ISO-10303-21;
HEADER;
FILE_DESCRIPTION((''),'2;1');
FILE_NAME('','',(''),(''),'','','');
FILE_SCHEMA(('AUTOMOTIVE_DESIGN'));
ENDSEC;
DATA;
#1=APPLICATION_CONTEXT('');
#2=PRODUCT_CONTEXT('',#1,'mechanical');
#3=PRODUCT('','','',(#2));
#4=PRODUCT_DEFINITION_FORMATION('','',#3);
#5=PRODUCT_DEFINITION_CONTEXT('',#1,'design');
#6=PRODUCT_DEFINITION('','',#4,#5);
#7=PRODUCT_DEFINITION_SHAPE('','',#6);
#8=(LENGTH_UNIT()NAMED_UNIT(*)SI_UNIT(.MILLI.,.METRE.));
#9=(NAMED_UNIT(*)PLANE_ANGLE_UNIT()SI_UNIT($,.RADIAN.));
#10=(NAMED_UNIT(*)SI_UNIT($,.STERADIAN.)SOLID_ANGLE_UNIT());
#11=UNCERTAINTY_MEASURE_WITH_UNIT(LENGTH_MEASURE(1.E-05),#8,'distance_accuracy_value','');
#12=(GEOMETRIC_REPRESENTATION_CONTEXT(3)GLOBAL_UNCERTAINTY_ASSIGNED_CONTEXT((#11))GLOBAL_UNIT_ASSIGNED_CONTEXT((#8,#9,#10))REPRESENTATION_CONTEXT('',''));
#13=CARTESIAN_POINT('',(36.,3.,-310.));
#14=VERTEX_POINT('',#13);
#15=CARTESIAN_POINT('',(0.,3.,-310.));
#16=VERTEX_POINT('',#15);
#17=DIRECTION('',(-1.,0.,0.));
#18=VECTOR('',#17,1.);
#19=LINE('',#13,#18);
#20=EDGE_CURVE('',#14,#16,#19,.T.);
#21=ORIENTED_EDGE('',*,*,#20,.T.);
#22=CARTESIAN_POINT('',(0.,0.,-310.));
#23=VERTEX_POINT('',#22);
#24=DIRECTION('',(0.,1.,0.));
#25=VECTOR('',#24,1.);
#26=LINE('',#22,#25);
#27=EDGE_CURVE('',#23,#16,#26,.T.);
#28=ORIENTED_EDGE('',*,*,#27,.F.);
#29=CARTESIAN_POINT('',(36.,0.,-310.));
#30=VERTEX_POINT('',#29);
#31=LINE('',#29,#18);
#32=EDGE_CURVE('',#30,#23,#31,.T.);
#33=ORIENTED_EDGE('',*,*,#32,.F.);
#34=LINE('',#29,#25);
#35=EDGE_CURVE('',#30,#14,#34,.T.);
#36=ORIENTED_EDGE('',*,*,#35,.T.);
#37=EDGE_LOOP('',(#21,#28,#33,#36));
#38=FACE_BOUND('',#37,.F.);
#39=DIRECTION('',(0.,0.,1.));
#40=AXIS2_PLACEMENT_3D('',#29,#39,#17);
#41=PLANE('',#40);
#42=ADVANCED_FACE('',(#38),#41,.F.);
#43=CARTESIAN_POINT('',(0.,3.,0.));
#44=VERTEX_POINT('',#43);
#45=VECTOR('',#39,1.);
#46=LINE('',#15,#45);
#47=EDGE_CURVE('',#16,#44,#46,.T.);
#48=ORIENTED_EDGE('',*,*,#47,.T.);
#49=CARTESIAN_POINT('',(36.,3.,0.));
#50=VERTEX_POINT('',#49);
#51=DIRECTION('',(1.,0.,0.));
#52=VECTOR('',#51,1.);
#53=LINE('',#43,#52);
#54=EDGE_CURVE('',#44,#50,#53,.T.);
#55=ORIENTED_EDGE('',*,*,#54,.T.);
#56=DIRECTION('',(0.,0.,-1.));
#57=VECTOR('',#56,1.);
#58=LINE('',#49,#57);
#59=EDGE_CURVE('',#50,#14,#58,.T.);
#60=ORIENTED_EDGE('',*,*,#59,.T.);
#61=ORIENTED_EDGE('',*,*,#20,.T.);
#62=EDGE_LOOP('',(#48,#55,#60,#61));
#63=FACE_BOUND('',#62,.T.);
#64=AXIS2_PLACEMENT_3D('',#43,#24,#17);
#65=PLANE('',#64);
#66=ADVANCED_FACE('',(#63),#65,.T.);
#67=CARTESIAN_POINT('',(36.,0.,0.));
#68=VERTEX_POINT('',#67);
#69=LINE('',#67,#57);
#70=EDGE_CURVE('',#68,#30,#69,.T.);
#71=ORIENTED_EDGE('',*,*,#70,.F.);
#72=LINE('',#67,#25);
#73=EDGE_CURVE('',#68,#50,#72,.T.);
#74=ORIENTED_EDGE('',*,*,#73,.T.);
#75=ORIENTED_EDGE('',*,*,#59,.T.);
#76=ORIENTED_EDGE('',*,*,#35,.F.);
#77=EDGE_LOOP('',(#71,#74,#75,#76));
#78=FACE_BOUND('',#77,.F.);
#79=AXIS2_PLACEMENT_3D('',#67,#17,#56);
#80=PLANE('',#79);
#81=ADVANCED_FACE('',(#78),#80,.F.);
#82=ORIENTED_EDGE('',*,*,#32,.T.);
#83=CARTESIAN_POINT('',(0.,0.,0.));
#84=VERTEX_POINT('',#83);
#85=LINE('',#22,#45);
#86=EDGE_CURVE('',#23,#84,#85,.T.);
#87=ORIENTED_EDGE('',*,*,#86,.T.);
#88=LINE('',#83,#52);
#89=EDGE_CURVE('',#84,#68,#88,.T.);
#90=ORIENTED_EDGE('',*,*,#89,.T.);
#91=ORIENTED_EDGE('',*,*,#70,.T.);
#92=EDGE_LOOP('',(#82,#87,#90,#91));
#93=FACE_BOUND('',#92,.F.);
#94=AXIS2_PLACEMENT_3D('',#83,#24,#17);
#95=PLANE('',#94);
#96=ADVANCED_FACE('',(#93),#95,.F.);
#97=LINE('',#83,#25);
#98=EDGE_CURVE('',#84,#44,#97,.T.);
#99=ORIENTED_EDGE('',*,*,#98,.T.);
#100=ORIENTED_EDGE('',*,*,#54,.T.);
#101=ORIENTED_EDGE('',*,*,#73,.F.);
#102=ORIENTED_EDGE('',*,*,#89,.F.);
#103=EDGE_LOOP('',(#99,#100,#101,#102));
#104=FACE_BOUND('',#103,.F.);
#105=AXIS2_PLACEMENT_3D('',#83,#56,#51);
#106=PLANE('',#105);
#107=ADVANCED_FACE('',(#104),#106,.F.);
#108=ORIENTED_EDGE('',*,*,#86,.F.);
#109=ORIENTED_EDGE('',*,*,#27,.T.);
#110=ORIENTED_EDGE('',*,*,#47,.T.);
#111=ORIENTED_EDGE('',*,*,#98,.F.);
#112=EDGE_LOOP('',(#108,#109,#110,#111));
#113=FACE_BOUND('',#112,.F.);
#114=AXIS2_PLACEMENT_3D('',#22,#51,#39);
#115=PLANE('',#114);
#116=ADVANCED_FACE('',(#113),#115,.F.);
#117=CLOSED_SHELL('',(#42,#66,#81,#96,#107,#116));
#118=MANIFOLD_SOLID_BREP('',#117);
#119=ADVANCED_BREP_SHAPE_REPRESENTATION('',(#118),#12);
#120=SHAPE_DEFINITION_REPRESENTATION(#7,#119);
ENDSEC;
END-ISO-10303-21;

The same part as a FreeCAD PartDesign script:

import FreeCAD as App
import Part
import Sketcher
from FreeCAD import Vector

doc = App.newDocument("Part")
body = doc.addObject("PartDesign::Body", "Body")

# Sketch on XZ plane
sketch1 = body.newObject("Sketcher::SketchObject", "Sketch")
sketch1.AttachmentSupport = (doc.getObject("XZ_Plane"), [""])
sketch1.MapMode = "FlatFace"
sketch1.addGeometry(Part.LineSegment(Vector(0, -310, 0), Vector(0, 0, 0)), False)
sketch1.addGeometry(Part.LineSegment(Vector(0, 0, 0), Vector(36, 0, 0)), False)
sketch1.addGeometry(Part.LineSegment(Vector(36, 0, 0), Vector(36, -310, 0)), False)
sketch1.addGeometry(Part.LineSegment(Vector(36, -310, 0), Vector(0, -310, 0)), False)
sketch1.addConstraint(Sketcher.Constraint("Coincident", 0, 2, 1, 1))
sketch1.addConstraint(Sketcher.Constraint("Coincident", 1, 2, 2, 1))
sketch1.addConstraint(Sketcher.Constraint("Coincident", 2, 2, 3, 1))
sketch1.addConstraint(Sketcher.Constraint("Coincident", 3, 2, 0, 1))
sketch1.addConstraint(Sketcher.Constraint("Vertical", 0))
sketch1.addConstraint(Sketcher.Constraint("Horizontal", 1))
sketch1.addConstraint(Sketcher.Constraint("Vertical", 2))
sketch1.addConstraint(Sketcher.Constraint("Horizontal", 3))
sketch1.addConstraint(Sketcher.Constraint("Coincident", 0, 2, -1, 1))
sketch1.addConstraint(Sketcher.Constraint("DistanceX", 1, 1, 1, 2, 36.0))
sketch1.addConstraint(Sketcher.Constraint("DistanceY", 0, 1, 0, 2, 310.0))
pad1 = body.newObject("PartDesign::Pad", "Pad")
pad1.Profile = sketch1
pad1.Length = 3
pad1.Reversed = True

doc.recompute()
